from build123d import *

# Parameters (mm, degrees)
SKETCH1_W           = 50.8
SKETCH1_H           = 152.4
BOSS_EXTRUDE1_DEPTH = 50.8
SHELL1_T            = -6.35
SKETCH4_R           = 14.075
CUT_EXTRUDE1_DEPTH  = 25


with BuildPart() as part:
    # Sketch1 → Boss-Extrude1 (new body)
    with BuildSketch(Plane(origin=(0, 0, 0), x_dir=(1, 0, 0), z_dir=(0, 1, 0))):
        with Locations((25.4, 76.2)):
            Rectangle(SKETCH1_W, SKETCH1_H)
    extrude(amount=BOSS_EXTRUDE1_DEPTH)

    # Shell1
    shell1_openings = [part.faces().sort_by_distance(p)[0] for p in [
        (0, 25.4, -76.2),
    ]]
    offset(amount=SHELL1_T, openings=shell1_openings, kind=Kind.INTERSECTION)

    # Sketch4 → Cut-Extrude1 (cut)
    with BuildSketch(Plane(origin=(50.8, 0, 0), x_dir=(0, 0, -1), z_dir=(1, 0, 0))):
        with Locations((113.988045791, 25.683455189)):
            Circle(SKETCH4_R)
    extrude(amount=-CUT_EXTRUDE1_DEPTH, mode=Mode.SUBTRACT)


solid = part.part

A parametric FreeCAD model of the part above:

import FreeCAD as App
import Part
import Sketcher
Q = App.Units.Quantity


def faces_at(feature, points):
    """Names of the faces that lie closest to the given points."""
    faces = feature.Shape.Faces
    near = lambda p: min(range(len(faces)), key=lambda i: faces[i].distToShape(Part.Vertex(*p))[0])
    return sorted({f"Face{near(p) + 1}" for p in points})


def add_polygon(sketch, points):
    """Adds a closed chain of lines whose ends are joined by coincident constraints."""
    first, n = sketch.GeometryCount, len(points)
    for a, b in zip(points, points[1:] + points[:1]):
        sketch.addGeometry(Part.LineSegment(App.Vector(*a, 0), App.Vector(*b, 0)), False)
    for i in range(n):
        sketch.addConstraint(Sketcher.Constraint("Coincident", first + i, 2, first + (i + 1) % n, 1))

doc = App.newDocument("Part")
body = doc.addObject("PartDesign::Body", "Body")

sketch1 = doc.addObject("Sketcher::SketchObject", "Sketch")
body.addObject(sketch1)
sketch1.AttachmentSupport = (doc.XZ_Plane, [""])
sketch1.MapMode = "FlatFace"
add_polygon(sketch1, [(0, -152), (0, 0), (51, 0), (51, -152)])
sketch1.addConstraint([
    Sketcher.Constraint("Vertical", 0),
    Sketcher.Constraint("Horizontal", 1),
    Sketcher.Constraint("Vertical", 2),
    Sketcher.Constraint("Horizontal", 3),
    Sketcher.Constraint("Coincident", 0, 2, -1, 1),
    Sketcher.Constraint("DistanceX", 1, 1, 1, 2, Q("2 in")),
    Sketcher.Constraint("DistanceY", 0, 1, 0, 2, Q("6 in")),
])
pad1 = doc.addObject("PartDesign::Pad", "Pad")
body.addObject(pad1)
pad1.Profile = sketch1
pad1.Length = Q("2 in")
pad1.Reversed = True
doc.recompute()

thickness = doc.addObject("PartDesign::Thickness", "Thickness")
body.addObject(thickness)
thickness.Base = (pad1, faces_at(pad1, [(0, 25.4, -76.2)]))
thickness.Value = Q("0.25 in")
thickness.Reversed = True
thickness.Join = "Intersection"

sketch2 = doc.addObject("Sketcher::SketchObject", "Sketch001")
body.addObject(sketch2)
sketch2.AttachmentSupport = (doc.YZ_Plane, [""])
sketch2.MapMode = "FlatFace"
sketch2.AttachmentOffset = App.Placement(App.Vector(0, 0, 2 * 25.4), App.Rotation())
sketch2.addGeometry(Part.Circle(App.Vector(26, -114, 0), App.Vector(0, 0, 1), 14), False)
sketch2.addConstraint([
    Sketcher.Constraint("Diameter", 0, 28.15),
    Sketcher.Constraint("DistanceX", -1, 1, 0, 3, 25.683455),
    Sketcher.Constraint("DistanceY", 0, 3, -1, 1, 113.988046),
])
pocket1 = doc.addObject("PartDesign::Pocket", "Pocket")
body.addObject(pocket1)
pocket1.Profile = sketch2
pocket1.Length = 25

doc.recompute()
